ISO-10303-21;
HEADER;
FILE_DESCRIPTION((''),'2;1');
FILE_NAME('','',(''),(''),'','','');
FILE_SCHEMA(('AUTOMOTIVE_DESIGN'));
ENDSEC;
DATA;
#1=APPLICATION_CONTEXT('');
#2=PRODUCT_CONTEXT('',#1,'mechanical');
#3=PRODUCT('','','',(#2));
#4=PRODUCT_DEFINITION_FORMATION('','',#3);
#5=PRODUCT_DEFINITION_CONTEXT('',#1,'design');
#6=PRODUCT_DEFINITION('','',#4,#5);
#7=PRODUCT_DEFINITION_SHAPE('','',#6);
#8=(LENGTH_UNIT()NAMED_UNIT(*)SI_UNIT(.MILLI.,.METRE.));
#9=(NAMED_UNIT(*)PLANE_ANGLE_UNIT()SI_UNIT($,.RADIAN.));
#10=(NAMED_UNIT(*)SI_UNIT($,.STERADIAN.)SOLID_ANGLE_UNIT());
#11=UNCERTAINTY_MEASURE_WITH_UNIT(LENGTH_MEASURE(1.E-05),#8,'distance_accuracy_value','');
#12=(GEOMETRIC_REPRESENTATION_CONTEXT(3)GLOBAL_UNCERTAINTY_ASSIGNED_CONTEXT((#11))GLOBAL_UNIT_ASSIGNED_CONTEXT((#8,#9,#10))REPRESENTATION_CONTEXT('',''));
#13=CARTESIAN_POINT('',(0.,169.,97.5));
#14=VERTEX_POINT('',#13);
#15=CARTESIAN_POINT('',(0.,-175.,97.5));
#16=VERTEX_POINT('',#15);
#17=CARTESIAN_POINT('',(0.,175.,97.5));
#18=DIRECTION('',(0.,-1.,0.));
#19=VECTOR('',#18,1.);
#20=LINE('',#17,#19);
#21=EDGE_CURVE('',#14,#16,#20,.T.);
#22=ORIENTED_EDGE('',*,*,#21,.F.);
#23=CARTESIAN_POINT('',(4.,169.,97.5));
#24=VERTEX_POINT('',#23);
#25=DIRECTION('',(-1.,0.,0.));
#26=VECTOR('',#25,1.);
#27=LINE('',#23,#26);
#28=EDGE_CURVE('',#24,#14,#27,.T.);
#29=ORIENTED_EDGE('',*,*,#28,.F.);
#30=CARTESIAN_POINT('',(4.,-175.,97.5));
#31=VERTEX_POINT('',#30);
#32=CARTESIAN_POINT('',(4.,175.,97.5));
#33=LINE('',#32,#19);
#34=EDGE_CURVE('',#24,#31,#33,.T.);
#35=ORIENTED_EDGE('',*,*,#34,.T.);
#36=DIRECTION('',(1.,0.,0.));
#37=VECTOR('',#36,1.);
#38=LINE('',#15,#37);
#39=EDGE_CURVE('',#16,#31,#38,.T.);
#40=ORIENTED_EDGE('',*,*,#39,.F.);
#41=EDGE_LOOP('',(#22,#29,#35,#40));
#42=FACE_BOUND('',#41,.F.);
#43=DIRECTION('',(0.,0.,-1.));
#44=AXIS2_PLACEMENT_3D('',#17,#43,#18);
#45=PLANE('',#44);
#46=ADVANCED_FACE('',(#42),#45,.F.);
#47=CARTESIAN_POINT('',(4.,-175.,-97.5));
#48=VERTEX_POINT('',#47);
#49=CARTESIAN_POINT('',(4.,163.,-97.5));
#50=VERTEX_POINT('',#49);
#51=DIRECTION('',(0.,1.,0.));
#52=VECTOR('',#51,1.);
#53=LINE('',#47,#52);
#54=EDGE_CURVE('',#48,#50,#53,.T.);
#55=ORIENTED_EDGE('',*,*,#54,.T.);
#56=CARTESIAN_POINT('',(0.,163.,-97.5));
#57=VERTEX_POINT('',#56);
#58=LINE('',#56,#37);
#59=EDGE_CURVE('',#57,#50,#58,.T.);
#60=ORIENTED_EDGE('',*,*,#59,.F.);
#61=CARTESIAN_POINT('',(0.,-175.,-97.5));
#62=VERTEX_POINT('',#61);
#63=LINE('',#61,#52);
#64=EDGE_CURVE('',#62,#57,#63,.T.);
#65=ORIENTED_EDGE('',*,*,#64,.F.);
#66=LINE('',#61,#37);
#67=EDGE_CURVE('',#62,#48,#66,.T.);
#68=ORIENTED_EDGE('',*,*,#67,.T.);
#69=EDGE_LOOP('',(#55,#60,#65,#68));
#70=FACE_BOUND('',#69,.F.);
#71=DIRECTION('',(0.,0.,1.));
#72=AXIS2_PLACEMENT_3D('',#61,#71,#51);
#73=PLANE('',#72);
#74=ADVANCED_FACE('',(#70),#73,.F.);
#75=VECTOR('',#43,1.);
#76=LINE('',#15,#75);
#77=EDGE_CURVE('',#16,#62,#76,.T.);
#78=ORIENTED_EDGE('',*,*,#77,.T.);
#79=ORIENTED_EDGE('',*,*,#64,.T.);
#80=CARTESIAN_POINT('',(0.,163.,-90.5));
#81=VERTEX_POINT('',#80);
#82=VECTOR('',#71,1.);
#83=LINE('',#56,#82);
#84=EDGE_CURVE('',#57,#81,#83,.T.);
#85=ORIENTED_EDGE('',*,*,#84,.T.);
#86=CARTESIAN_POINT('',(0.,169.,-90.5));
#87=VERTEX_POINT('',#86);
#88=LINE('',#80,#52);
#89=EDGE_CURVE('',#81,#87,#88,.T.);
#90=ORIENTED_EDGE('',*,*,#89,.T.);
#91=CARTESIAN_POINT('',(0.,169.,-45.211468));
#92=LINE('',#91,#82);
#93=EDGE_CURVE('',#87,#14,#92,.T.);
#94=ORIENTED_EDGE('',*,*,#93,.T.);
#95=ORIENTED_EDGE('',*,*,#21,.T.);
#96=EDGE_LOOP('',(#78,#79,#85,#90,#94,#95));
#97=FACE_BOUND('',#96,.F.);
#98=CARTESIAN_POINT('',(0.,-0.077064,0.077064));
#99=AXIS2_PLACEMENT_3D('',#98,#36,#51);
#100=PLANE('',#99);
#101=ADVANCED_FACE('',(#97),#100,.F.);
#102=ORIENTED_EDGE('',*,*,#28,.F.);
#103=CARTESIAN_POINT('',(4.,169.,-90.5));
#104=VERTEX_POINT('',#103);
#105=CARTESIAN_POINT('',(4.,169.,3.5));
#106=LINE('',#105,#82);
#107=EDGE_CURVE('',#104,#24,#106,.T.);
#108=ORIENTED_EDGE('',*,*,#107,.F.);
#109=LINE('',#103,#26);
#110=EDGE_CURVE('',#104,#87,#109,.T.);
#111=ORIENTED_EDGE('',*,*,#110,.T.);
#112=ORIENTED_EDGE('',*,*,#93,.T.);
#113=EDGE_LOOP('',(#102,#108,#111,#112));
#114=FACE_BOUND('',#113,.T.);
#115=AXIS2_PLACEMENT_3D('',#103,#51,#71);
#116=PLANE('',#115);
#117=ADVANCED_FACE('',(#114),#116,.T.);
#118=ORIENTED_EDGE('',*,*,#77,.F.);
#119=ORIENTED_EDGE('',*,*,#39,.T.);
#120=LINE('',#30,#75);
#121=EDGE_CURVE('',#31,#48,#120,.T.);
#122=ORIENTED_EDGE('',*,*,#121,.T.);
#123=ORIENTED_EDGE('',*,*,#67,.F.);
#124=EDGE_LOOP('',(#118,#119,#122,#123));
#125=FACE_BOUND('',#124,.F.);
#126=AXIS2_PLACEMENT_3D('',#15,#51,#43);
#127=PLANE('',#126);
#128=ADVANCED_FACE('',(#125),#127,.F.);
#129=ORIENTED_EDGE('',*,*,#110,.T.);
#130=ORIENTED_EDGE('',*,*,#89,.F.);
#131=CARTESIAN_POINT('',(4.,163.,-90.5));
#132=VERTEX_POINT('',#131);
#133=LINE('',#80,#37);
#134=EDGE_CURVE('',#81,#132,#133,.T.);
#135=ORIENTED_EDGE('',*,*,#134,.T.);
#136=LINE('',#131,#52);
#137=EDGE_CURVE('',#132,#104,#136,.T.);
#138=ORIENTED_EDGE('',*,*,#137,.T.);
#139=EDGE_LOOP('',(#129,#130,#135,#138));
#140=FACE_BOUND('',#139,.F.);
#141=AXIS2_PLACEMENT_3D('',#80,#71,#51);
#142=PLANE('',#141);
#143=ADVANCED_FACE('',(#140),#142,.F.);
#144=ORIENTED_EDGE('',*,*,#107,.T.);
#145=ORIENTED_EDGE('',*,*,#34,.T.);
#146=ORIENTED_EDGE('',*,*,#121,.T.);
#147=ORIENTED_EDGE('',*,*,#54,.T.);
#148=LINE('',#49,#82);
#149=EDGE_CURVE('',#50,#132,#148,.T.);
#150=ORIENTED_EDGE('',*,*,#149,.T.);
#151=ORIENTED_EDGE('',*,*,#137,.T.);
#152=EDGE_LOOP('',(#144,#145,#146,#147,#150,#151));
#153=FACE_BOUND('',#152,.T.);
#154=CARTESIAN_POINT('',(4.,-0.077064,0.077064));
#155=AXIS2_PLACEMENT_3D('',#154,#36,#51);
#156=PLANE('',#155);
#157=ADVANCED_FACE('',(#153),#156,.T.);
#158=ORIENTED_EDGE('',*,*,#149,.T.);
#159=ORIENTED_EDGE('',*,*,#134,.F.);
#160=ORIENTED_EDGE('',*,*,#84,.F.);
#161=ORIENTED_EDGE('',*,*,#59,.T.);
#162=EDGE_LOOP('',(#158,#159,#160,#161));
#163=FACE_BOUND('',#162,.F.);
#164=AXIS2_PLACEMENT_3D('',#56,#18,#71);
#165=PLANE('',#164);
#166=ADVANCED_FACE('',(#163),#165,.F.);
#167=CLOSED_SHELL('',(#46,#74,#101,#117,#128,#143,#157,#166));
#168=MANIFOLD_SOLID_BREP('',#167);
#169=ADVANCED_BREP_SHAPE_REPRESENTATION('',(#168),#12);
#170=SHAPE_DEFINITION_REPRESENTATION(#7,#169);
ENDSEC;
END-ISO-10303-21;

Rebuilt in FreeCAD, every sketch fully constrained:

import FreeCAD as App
import Part
import Sketcher

V = App.Vector


def add_polygon(sketch, points):
    """Adds a closed chain of lines whose ends are joined by coincident constraints."""
    first, n = sketch.GeometryCount, len(points)
    for a, b in zip(points, points[1:] + points[:1]):
        sketch.addGeometry(Part.LineSegment(App.Vector(*a, 0), App.Vector(*b, 0)), False)
    for i in range(n):
        sketch.addConstraint(Sketcher.Constraint("Coincident", first + i, 2, first + (i + 1) % n, 1))

doc = App.newDocument("Part")
params = doc.addObject("Spreadsheet::Sheet", "Params")
for row, (alias, value) in enumerate([
    ("sketch1_width", "350 mm"),
    ("sketch1_width2", "338 mm"),
    ("sketch1_height", "188 mm"),
    ("sketch1_height2", "195 mm"),
    ("pad1_length", "4 mm"),
    ("sketch2_width", "6 mm"),
    ("sketch2_height", "188 mm"),
    ("pocket1_length", "25 mm"),
], start=1):
    params.set(f"A{row}", alias)
    params.set(f"B{row}", "=" + value)
    params.setAlias(f"B{row}", alias)

body = doc.addObject("PartDesign::Body", "Body")

# Sketch on YZ plane
sketch1 = body.newObject("Sketcher::SketchObject", "Sketch")
sketch1.AttachmentSupport = (doc.getObject("YZ_Plane"), [""])
sketch1.MapMode = "FlatFace"
add_polygon(sketch1, [(175, -90.5), (175, 97.5), (-175, 97.5), (-175, -97.5), (163, -97.5), (163, -90.5)])  # lines 0-5
sketch1.addConstraint([
    Sketcher.Constraint("Vertical", 0),
    Sketcher.Constraint("Horizontal", 1),
    Sketcher.Constraint("Vertical", 2),
    Sketcher.Constraint("Horizontal", 3),
    Sketcher.Constraint("Vertical", 4),
    Sketcher.Constraint("Horizontal", 5),
    Sketcher.Constraint("Symmetric", 0, 2, 2, 2, -1, 1),
    Sketcher.Constraint("DistanceX", 1, 2, 1, 1, 350.0),
    Sketcher.Constraint("DistanceX", 3, 1, 3, 2, 338.0),
    Sketcher.Constraint("DistanceY", 0, 1, 0, 2, 188.0),
    Sketcher.Constraint("DistanceY", 2, 2, 2, 1, 195.0),
])
sketch1.setExpression("Constraints[13]", "Params.sketch1_width")
sketch1.setExpression("Constraints[14]", "Params.sketch1_width2")
sketch1.setExpression("Constraints[15]", "Params.sketch1_height")
sketch1.setExpression("Constraints[16]", "Params.sketch1_height2")
pad1 = body.newObject("PartDesign::Pad", "Pad")
pad1.Profile = sketch1
pad1.setExpression("Length", "Params.pad1_length")

# Sketch on YZ plane
sketch2 = body.newObject("Sketcher::SketchObject", "Sketch001")
sketch2.AttachmentSupport = (doc.getObject("YZ_Plane"), [""])
sketch2.MapMode = "FlatFace"
sketch2.AttachmentOffset = App.Placement(V(0, 0, 4), App.Rotation())
add_polygon(sketch2, [(169, 97.5), (169, -90.5), (175, -90.5), (175, 97.5)])  # lines 0-3
sketch2.addConstraint([
    Sketcher.Constraint("Vertical", 0),
    Sketcher.Constraint("Horizontal", 1),
    Sketcher.Constraint("Vertical", 2),
    Sketcher.Constraint("Horizontal", 3),
    Sketcher.Constraint("DistanceX", 1, 1, 1, 2, 6.0),
    Sketcher.Constraint("DistanceY", 0, 2, 0, 1, 188.0),
    Sketcher.Constraint("DistanceX", -1, 1, 0, 2, 169.0),
    Sketcher.Constraint("DistanceY", 0, 2, -1, 1, 90.5),
])
sketch2.setExpression("Constraints[8]", "Params.sketch2_width")
sketch2.setExpression("Constraints[9]", "Params.sketch2_height")
pocket1 = body.newObject("PartDesign::Pocket", "Pocket")
pocket1.Profile = sketch2
pocket1.setExpression("Length", "Params.pocket1_length")

doc.recompute()
